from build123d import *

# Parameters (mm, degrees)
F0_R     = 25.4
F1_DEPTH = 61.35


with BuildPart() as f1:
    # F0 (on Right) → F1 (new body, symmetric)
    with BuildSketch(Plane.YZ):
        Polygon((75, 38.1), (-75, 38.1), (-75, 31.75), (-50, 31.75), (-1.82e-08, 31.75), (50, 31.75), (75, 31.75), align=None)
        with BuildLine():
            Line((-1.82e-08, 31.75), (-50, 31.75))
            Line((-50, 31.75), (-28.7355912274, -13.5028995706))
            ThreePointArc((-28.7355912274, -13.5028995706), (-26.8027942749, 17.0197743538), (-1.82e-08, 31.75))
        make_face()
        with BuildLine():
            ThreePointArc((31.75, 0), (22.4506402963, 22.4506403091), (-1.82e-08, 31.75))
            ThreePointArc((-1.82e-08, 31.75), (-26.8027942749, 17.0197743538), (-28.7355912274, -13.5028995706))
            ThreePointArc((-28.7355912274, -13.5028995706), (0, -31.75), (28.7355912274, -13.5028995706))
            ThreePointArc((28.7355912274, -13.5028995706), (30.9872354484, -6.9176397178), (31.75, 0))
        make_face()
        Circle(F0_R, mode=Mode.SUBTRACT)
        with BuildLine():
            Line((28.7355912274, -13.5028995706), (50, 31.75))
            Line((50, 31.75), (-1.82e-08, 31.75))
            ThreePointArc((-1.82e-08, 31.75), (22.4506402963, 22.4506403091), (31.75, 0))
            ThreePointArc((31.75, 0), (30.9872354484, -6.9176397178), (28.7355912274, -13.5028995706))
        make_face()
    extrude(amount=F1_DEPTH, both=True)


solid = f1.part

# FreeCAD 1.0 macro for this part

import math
import FreeCAD as App
import Part
import Sketcher

V = App.Vector

doc = App.newDocument("Part")
body = doc.addObject("PartDesign::Body", "Body")

# Sketch on YZ plane
sketch1 = body.newObject("Sketcher::SketchObject", "Sketch")
sketch1.AttachmentSupport = (doc.getObject("YZ_Plane"), [""])
sketch1.MapMode = "FlatFace"
sketch1.addGeometry(Part.LineSegment(V(75, 38, 0), V(-75, 38, 0)), False)
sketch1.addGeometry(Part.LineSegment(V(-75, 38, 0), V(-75, 32, 0)), False)
sketch1.addGeometry(Part.LineSegment(V(-75, 32, 0), V(-50, 32, 0)), False)
sketch1.addGeometry(Part.LineSegment(V(-50, 32, 0), V(-29, -14, 0)), False)
sketch1.addGeometry(Part.ArcOfCircle(Part.Circle(V(0, 0, 0), V(0, 0, 1), 32), math.radians(-155), math.radians(-25)), False)
sketch1.addGeometry(Part.LineSegment(V(29, -14, 0), V(50, 32, 0)), False)
sketch1.addGeometry(Part.LineSegment(V(50, 32, 0), V(75, 32, 0)), False)
sketch1.addGeometry(Part.LineSegment(V(75, 32, 0), V(75, 38, 0)), False)
sketch1.addGeometry(Part.Circle(V(0, 0, 0), V(0, 0, 1), 25), False)
sketch1.addConstraint(Sketcher.Constraint("Coincident", 0, 2, 1, 1))
sketch1.addConstraint(Sketcher.Constraint("Coincident", 1, 2, 2, 1))
sketch1.addConstraint(Sketcher.Constraint("Coincident", 2, 2, 3, 1))
sketch1.addConstraint(Sketcher.Constraint("Tangent", 3, 2, 4, 1))
sketch1.addConstraint(Sketcher.Constraint("Tangent", 4, 2, 5, 1))
sketch1.addConstraint(Sketcher.Constraint("Coincident", 5, 2, 6, 1))
sketch1.addConstraint(Sketcher.Constraint("Coincident", 6, 2, 7, 1))
sketch1.addConstraint(Sketcher.Constraint("Coincident", 7, 2, 0, 1))
sketch1.addConstraint(Sketcher.Constraint("Horizontal", 0))
sketch1.addConstraint(Sketcher.Constraint("Vertical", 1))
sketch1.addConstraint(Sketcher.Constraint("Horizontal", 2))
sketch1.addConstraint(Sketcher.Constraint("Horizontal", 6))
sketch1.addConstraint(Sketcher.Constraint("Vertical", 7))
sketch1.addConstraint(Sketcher.Constraint("Coincident", 4, 3, -1, 1))
sketch1.addConstraint(Sketcher.Constraint("Coincident", 8, 3, -1, 1))
sketch1.addConstraint(Sketcher.Constraint("Symmetric", 2, 2, 5, 2, -2))
sketch1.addConstraint(Sketcher.Constraint("Equal", 2, 6))
sketch1.addConstraint(Sketcher.Constraint("Diameter", 8, 50.8))
sketch1.addConstraint(Sketcher.Constraint("DistanceX", 0, 2, 0, 1, 150.0))
sketch1.addConstraint(Sketcher.Constraint("DistanceX", 2, 1, 2, 2, 25.0))
sketch1.addConstraint(Sketcher.Constraint("Radius", 4, 31.75))
sketch1.addConstraint(Sketcher.Constraint("Distance", 3, 50.0))
sketch1.addConstraint(Sketcher.Constraint("DistanceY", 1, 2, 1, 1, 6.35))
pad1 = body.newObject("PartDesign::Pad", "Pad")
pad1.Profile = sketch1
pad1.Length = 122.7
pad1.Midplane = True

doc.recompute()
